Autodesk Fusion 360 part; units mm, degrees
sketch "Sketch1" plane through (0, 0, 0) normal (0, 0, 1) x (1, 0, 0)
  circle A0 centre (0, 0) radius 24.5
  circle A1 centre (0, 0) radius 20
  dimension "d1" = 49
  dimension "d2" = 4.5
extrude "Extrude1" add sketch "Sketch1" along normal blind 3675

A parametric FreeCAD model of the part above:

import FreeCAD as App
import Part
import Sketcher
Q = App.Units.Quantity

doc = App.newDocument("Part")
body = doc.addObject("PartDesign::Body", "Body")

# Sketch on XY plane
sketch1 = doc.addObject("Sketcher::SketchObject", "Sketch")
body.addObject(sketch1)
sketch1.AttachmentSupport = (doc.XY_Plane, [""])
sketch1.MapMode = "FlatFace"
sketch1.addGeometry([
    Part.Circle(App.Vector(0, 0, 0), App.Vector(0, 0, 1), 24),
    Part.Circle(App.Vector(0, 0, 0), App.Vector(0, 0, 1), 20),
], False)
sketch1.addConstraint([
    Sketcher.Constraint("Coincident", 0, 3, -1, 1),
    Sketcher.Constraint("Coincident", 1, 3, -1, 1),
    Sketcher.Constraint("Diameter", 0, Q("49 mm")),
    Sketcher.Constraint("Diameter", 1, Q("40 mm")),
])
pad1 = doc.addObject("PartDesign::Pad", "Pad")
body.addObject(pad1)
pad1.Profile = sketch1
pad1.Length = 3675

doc.recompute()
